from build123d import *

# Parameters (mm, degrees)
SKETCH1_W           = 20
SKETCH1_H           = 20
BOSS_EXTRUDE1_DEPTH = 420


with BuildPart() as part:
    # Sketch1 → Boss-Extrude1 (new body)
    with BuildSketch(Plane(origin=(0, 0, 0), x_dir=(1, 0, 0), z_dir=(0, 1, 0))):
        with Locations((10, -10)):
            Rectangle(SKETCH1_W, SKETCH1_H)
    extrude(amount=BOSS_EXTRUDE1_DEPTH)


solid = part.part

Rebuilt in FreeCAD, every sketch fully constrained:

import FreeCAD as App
import Part
import Sketcher
Q = App.Units.Quantity

doc = App.newDocument("Part")
body = doc.addObject("PartDesign::Body", "Body")

# Sketch on XZ plane
sketch1 = body.newObject("Sketcher::SketchObject", "Sketch")
sketch1.AttachmentSupport = (doc.getObject("XZ_Plane"), [""])
sketch1.MapMode = "FlatFace"
sketch1.addGeometry(Part.LineSegment(App.Vector(0, 0, 0), App.Vector(0, 20, 0)), False)
sketch1.addGeometry(Part.LineSegment(App.Vector(0, 20, 0), App.Vector(20, 20, 0)), False)
sketch1.addGeometry(Part.LineSegment(App.Vector(20, 20, 0), App.Vector(20, 0, 0)), False)
sketch1.addGeometry(Part.LineSegment(App.Vector(20, 0, 0), App.Vector(0, 0, 0)), False)
sketch1.addConstraint(Sketcher.Constraint("Coincident", 0, 2, 1, 1))
sketch1.addConstraint(Sketcher.Constraint("Coincident", 1, 2, 2, 1))
sketch1.addConstraint(Sketcher.Constraint("Coincident", 2, 2, 3, 1))
sketch1.addConstraint(Sketcher.Constraint("Coincident", 3, 2, 0, 1))
sketch1.addConstraint(Sketcher.Constraint("Vertical", 0))
sketch1.addConstraint(Sketcher.Constraint("Horizontal", 1))
sketch1.addConstraint(Sketcher.Constraint("Vertical", 2))
sketch1.addConstraint(Sketcher.Constraint("Horizontal", 3))
sketch1.addConstraint(Sketcher.Constraint("Coincident", 3, 2, -1, 1))
sketch1.addConstraint(Sketcher.Constraint("Equal", 3, 0))
sketch1.addConstraint(Sketcher.Constraint("DistanceX", 1, 1, 1, 2, Q("20 mm")))
pad1 = body.newObject("PartDesign::Pad", "Pad")
pad1.Profile = sketch1
pad1.Length = 420
pad1.Reversed = True

doc.recompute()
